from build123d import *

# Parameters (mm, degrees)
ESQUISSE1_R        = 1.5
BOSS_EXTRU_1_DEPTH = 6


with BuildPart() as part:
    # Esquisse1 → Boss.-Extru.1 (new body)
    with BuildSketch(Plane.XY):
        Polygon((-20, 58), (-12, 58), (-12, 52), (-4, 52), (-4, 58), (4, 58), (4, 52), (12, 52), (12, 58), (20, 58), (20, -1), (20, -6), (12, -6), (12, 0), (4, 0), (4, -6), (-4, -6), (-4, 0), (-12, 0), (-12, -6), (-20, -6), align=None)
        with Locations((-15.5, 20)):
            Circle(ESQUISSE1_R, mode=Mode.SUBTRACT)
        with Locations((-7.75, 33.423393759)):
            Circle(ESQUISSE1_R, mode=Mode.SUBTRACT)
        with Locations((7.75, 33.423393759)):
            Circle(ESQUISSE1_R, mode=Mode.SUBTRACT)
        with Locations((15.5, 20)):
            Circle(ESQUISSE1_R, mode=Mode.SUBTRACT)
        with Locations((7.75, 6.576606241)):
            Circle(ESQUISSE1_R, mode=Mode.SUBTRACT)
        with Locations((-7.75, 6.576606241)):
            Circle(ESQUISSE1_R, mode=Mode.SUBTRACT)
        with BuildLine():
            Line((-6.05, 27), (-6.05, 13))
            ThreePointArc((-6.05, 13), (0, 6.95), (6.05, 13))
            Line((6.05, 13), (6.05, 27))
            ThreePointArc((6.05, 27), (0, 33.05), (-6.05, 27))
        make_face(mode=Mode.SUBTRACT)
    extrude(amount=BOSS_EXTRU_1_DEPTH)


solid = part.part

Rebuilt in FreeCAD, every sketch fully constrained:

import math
import FreeCAD as App
import Part
import Sketcher
Q = App.Units.Quantity

doc = App.newDocument("Part")
body = doc.addObject("PartDesign::Body", "Body")

# Sketch on XY plane
sketch1 = doc.addObject("Sketcher::SketchObject", "Sketch")
body.addObject(sketch1)
sketch1.AttachmentSupport = (doc.XY_Plane, [""])
sketch1.MapMode = "FlatFace"
sketch1.addGeometry(Part.LineSegment(App.Vector(-12, 58, 0), App.Vector(-20, 58, 0)), False)
sketch1.addGeometry(Part.LineSegment(App.Vector(-20, 58, 0), App.Vector(-20, -6, 0)), False)
sketch1.addGeometry(Part.LineSegment(App.Vector(-20, -6, 0), App.Vector(-12, -6, 0)), False)
sketch1.addGeometry(Part.LineSegment(App.Vector(-12, -6, 0), App.Vector(-12, 0, 0)), False)
sketch1.addGeometry(Part.LineSegment(App.Vector(-12, 0, 0), App.Vector(-4, 0, 0)), False)
sketch1.addGeometry(Part.LineSegment(App.Vector(-4, 0, 0), App.Vector(-4, -6, 0)), False)
sketch1.addGeometry(Part.LineSegment(App.Vector(-4, -6, 0), App.Vector(4, -6, 0)), False)
sketch1.addGeometry(Part.LineSegment(App.Vector(4, -6, 0), App.Vector(4, 0, 0)), False)
sketch1.addGeometry(Part.LineSegment(App.Vector(4, 0, 0), App.Vector(12, 0, 0)), False)
sketch1.addGeometry(Part.LineSegment(App.Vector(12, 0, 0), App.Vector(12, -6, 0)), False)
sketch1.addGeometry(Part.LineSegment(App.Vector(12, -6, 0), App.Vector(20, -6, 0)), False)
sketch1.addGeometry(Part.LineSegment(App.Vector(20, -6, 0), App.Vector(20, 58, 0)), False)
sketch1.addGeometry(Part.LineSegment(App.Vector(20, 58, 0), App.Vector(12, 58, 0)), False)
sketch1.addGeometry(Part.LineSegment(App.Vector(12, 58, 0), App.Vector(12, 52, 0)), False)
sketch1.addGeometry(Part.LineSegment(App.Vector(12, 52, 0), App.Vector(4, 52, 0)), False)
sketch1.addGeometry(Part.LineSegment(App.Vector(4, 52, 0), App.Vector(4, 58, 0)), False)
sketch1.addGeometry(Part.LineSegment(App.Vector(4, 58, 0), App.Vector(-4, 58, 0)), False)
sketch1.addGeometry(Part.LineSegment(App.Vector(-4, 58, 0), App.Vector(-4, 52, 0)), False)
sketch1.addGeometry(Part.LineSegment(App.Vector(-4, 52, 0), App.Vector(-12, 52, 0)), False)
sketch1.addGeometry(Part.LineSegment(App.Vector(-12, 52, 0), App.Vector(-12, 58, 0)), False)
sketch1.addGeometry(Part.Circle(App.Vector(7.8, 6.6, 0), App.Vector(0, 0, 1), 1.5), False)
sketch1.addGeometry(Part.Circle(App.Vector(-7.8, 6.6, 0), App.Vector(0, 0, 1), 1.5), False)
sketch1.addGeometry(Part.ArcOfCircle(Part.Circle(App.Vector(0, 27, 0), App.Vector(0, 0, 1), 6), math.radians(0), math.radians(180)), False)
sketch1.addGeometry(Part.LineSegment(App.Vector(6, 27, 0), App.Vector(6, 13, 0)), False)
sketch1.addGeometry(Part.ArcOfCircle(Part.Circle(App.Vector(0, 13, 0), App.Vector(0, 0, 1), 6), math.radians(180), math.radians(360)), False)
sketch1.addGeometry(Part.LineSegment(App.Vector(-6, 13, 0), App.Vector(-6, 27, 0)), False)
sketch1.addGeometry(Part.Circle(App.Vector(15.5, 20, 0), App.Vector(0, 0, 1), 1.5), False)
sketch1.addGeometry(Part.Circle(App.Vector(7.8, 33.4, 0), App.Vector(0, 0, 1), 1.5), False)
sketch1.addGeometry(Part.Circle(App.Vector(-15.5, 20, 0), App.Vector(0, 0, 1), 1.5), False)
sketch1.addGeometry(Part.Circle(App.Vector(-7.8, 33.4, 0), App.Vector(0, 0, 1), 1.5), False)
sketch1.addConstraint(Sketcher.Constraint("Coincident", 0, 2, 1, 1))
sketch1.addConstraint(Sketcher.Constraint("Coincident", 1, 2, 2, 1))
sketch1.addConstraint(Sketcher.Constraint("Coincident", 2, 2, 3, 1))
sketch1.addConstraint(Sketcher.Constraint("Coincident", 3, 2, 4, 1))
sketch1.addConstraint(Sketcher.Constraint("Coincident", 4, 2, 5, 1))
sketch1.addConstraint(Sketcher.Constraint("Coincident", 5, 2, 6, 1))
sketch1.addConstraint(Sketcher.Constraint("Coincident", 6, 2, 7, 1))
sketch1.addConstraint(Sketcher.Constraint("Coincident", 7, 2, 8, 1))
sketch1.addConstraint(Sketcher.Constraint("Coincident", 8, 2, 9, 1))
sketch1.addConstraint(Sketcher.Constraint("Coincident", 9, 2, 10, 1))
sketch1.addConstraint(Sketcher.Constraint("Coincident", 10, 2, 11, 1))
sketch1.addConstraint(Sketcher.Constraint("Coincident", 11, 2, 12, 1))
sketch1.addConstraint(Sketcher.Constraint("Coincident", 12, 2, 13, 1))
sketch1.addConstraint(Sketcher.Constraint("Coincident", 13, 2, 14, 1))
sketch1.addConstraint(Sketcher.Constraint("Coincident", 14, 2, 15, 1))
sketch1.addConstraint(Sketcher.Constraint("Coincident", 15, 2, 16, 1))
sketch1.addConstraint(Sketcher.Constraint("Coincident", 16, 2, 17, 1))
sketch1.addConstraint(Sketcher.Constraint("Coincident", 17, 2, 18, 1))
sketch1.addConstraint(Sketcher.Constraint("Coincident", 18, 2, 19, 1))
sketch1.addConstraint(Sketcher.Constraint("Coincident", 19, 2, 0, 1))
sketch1.addConstraint(Sketcher.Constraint("Tangent", 22, 1, 23, 1))
sketch1.addConstraint(Sketcher.Constraint("Tangent", 23, 2, 24, 2))
sketch1.addConstraint(Sketcher.Constraint("Tangent", 24, 1, 25, 1))
sketch1.addConstraint(Sketcher.Constraint("Tangent", 25, 2, 22, 2))
sketch1.addConstraint(Sketcher.Constraint("Horizontal", 0))
sketch1.addConstraint(Sketcher.Constraint("Vertical", 1))
sketch1.addConstraint(Sketcher.Constraint("Horizontal", 2))
sketch1.addConstraint(Sketcher.Constraint("Vertical", 3))
sketch1.addConstraint(Sketcher.Constraint("Horizontal", 4))
sketch1.addConstraint(Sketcher.Constraint("Vertical", 5))
sketch1.addConstraint(Sketcher.Constraint("Horizontal", 6))
sketch1.addConstraint(Sketcher.Constraint("Vertical", 7))
sketch1.addConstraint(Sketcher.Constraint("Horizontal", 8))
sketch1.addConstraint(Sketcher.Constraint("Vertical", 9))
sketch1.addConstraint(Sketcher.Constraint("Horizontal", 10))
sketch1.addConstraint(Sketcher.Constraint("Vertical", 11))
sketch1.addConstraint(Sketcher.Constraint("Horizontal", 12))
sketch1.addConstraint(Sketcher.Constraint("Vertical", 13))
sketch1.addConstraint(Sketcher.Constraint("Horizontal", 14))
sketch1.addConstraint(Sketcher.Constraint("Vertical", 15))
sketch1.addConstraint(Sketcher.Constraint("Horizontal", 16))
sketch1.addConstraint(Sketcher.Constraint("Vertical", 17))
sketch1.addConstraint(Sketcher.Constraint("Horizontal", 18))
sketch1.addConstraint(Sketcher.Constraint("Vertical", 19))
sketch1.addConstraint(Sketcher.Constraint("Vertical", 23))
sketch1.addConstraint(Sketcher.Constraint("Vertical", 25))
sketch1.addConstraint(Sketcher.Constraint("Equal", 20, 21))
sketch1.addConstraint(Sketcher.Constraint("Equal", 21, 26))
sketch1.addConstraint(Sketcher.Constraint("Equal", 26, 27))
sketch1.addConstraint(Sketcher.Constraint("Equal", 27, 28))
sketch1.addConstraint(Sketcher.Constraint("Equal", 28, 29))
sketch1.addConstraint(Sketcher.Constraint("Symmetric", 4, 2, 7, 2, -1, 1))
sketch1.addConstraint(Sketcher.Constraint("Symmetric", 20, 3, 21, 3, -2))
sketch1.addConstraint(Sketcher.Constraint("Symmetric", 26, 3, 28, 3, -2))
sketch1.addConstraint(Sketcher.Constraint("Symmetric", 27, 3, 29, 3, -2))
sketch1.addConstraint(Sketcher.Constraint("Symmetric", 3, 2, 8, 2, -2))
sketch1.addConstraint(Sketcher.Constraint("Symmetric", 1, 2, 10, 2, -2))
sketch1.addConstraint(Sketcher.Constraint("Symmetric", 14, 2, 17, 2, -2))
sketch1.addConstraint(Sketcher.Constraint("Symmetric", 12, 2, 19, 2, -2))
sketch1.addConstraint(Sketcher.Constraint("PointOnObject", 22, 3, -2))
sketch1.addConstraint(Sketcher.Constraint("Horizontal", 2, 2, 5, 2))
sketch1.addConstraint(Sketcher.Constraint("Horizontal", 12, 2, 15, 2))
sketch1.addConstraint(Sketcher.Constraint("Vertical", 20, 3, 27, 3))
sketch1.addConstraint(Sketcher.Constraint("Vertical", 9, 2, 12, 2))
sketch1.addConstraint(Sketcher.Constraint("Vertical", 7, 2, 14, 2))
sketch1.addConstraint(Sketcher.Constraint("Equal", 2, 4))
sketch1.addConstraint(Sketcher.Constraint("Equal", 4, 6))
sketch1.addConstraint(Sketcher.Constraint("Equal", 9, 13))
sketch1.addConstraint(Sketcher.Constraint("Diameter", 20, Q("3 mm")))
sketch1.addConstraint(Sketcher.Constraint("DistanceX", 0, 2, 0, 1, Q("8 mm")))
sketch1.addConstraint(Sketcher.Constraint("DistanceY", 1, 2, 1, 1, Q("64 mm")))
sketch1.addConstraint(Sketcher.Constraint("DistanceY", 3, 1, 3, 2, Q("6 mm")))
sketch1.addConstraint(Sketcher.Constraint("DistanceY", 23, 2, 23, 1, Q("14 mm")))
sketch1.addConstraint(Sketcher.Constraint("Radius", 22, Q("6.05 mm")))
sketch1.addConstraint(Sketcher.Constraint("DistanceY", -1, 1, 22, 3, Q("27 mm")))
sketch1.addConstraint(Sketcher.Constraint("DistanceY", -1, 1, 26, 3, Q("20 mm")))
sketch1.addConstraint(Sketcher.Constraint("DistanceX", -1, 1, 26, 3, Q("15.5 mm")))
sketch1.addConstraint(Sketcher.Constraint("DistanceX", 21, 3, 20, 3, Q("15.5 mm")))
sketch1.addConstraint(Sketcher.Constraint("DistanceY", -1, 1, 20, 3, Q("6.576606 mm")))
sketch1.addConstraint(Sketcher.Constraint("DistanceY", -1, 1, 27, 3, Q("33.423394 mm")))
pad1 = doc.addObject("PartDesign::Pad", "Pad")
body.addObject(pad1)
pad1.Profile = sketch1
pad1.Length = 6

doc.recompute()
